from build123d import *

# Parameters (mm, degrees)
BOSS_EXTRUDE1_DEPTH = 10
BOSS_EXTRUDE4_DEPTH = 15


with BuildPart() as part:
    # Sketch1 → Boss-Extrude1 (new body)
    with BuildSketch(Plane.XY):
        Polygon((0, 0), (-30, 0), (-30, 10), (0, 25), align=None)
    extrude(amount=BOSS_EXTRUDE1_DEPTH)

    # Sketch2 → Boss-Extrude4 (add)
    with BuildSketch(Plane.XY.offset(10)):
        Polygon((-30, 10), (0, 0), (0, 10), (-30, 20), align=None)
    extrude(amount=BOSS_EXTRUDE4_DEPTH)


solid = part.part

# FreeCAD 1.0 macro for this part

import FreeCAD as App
import Part
import Sketcher


def add_polygon(sketch, points):
    """Adds a closed chain of lines whose ends are joined by coincident constraints."""
    first, n = sketch.GeometryCount, len(points)
    for a, b in zip(points, points[1:] + points[:1]):
        sketch.addGeometry(Part.LineSegment(App.Vector(*a, 0), App.Vector(*b, 0)), False)
    for i in range(n):
        sketch.addConstraint(Sketcher.Constraint("Coincident", first + i, 2, first + (i + 1) % n, 1))

doc = App.newDocument("Part")
params = doc.addObject("Spreadsheet::Sheet", "Params")
for row, (alias, value) in enumerate([
    ("sketch1_width", "30 mm"),
    ("sketch1_height", "25 mm"),
    ("sketch1_height2", "10 mm"),
    ("pad1_length", "10 mm"),
    ("sketch2_height", "10 mm"),
    ("pad2_length", "15 mm"),
], start=1):
    params.set(f"A{row}", alias)
    params.set(f"B{row}", "=" + value)
    params.setAlias(f"B{row}", alias)

body = doc.addObject("PartDesign::Body", "Body")

sketch1 = body.newObject("Sketcher::SketchObject", "Sketch")
sketch1.AttachmentSupport = (doc.getObject("XY_Plane"), [""])
sketch1.MapMode = "FlatFace"
add_polygon(sketch1, [(-30, 0), (0, 0), (0, 25), (-30, 10)])
sketch1.addConstraint([
    Sketcher.Constraint("Horizontal", 0),
    Sketcher.Constraint("Vertical", 1),
    Sketcher.Constraint("Vertical", 3),
    Sketcher.Constraint("Coincident", 0, 2, -1, 1),
    Sketcher.Constraint("DistanceX", 0, 1, 0, 2, 30.0),
    Sketcher.Constraint("DistanceY", 1, 1, 1, 2, 25.0),
    Sketcher.Constraint("DistanceY", 3, 2, 3, 1, 10.0),
])
sketch1.setExpression("Constraints[8]", "Params.sketch1_width")
sketch1.setExpression("Constraints[9]", "Params.sketch1_height")
sketch1.setExpression("Constraints[10]", "Params.sketch1_height2")
pad1 = body.newObject("PartDesign::Pad", "Pad")
pad1.Profile = sketch1
pad1.setExpression("Length", "Params.pad1_length")

sketch2 = body.newObject("Sketcher::SketchObject", "Sketch001")
sketch2.AttachmentSupport = (doc.getObject("XY_Plane"), [""])
sketch2.MapMode = "FlatFace"
sketch2.AttachmentOffset = App.Placement(App.Vector(0, 0, 10), App.Rotation())
add_polygon(sketch2, [(-30, 10), (0, 0), (0, 10), (-30, 20)])
sketch2.addConstraint([
    Sketcher.Constraint("Vertical", 1),
    Sketcher.Constraint("Vertical", 3),
    Sketcher.Constraint("Coincident", 0, 2, -1, 1),
    Sketcher.Constraint("Parallel", 0, 2),
    Sketcher.Constraint("Horizontal", 1, 2, 3, 2),
    Sketcher.Constraint("DistanceY", 1, 1, 1, 2, 10.0),
    Sketcher.Constraint("DistanceX", 2, 2, -1, 1, 30.0),
])
sketch2.setExpression("Constraints[9]", "Params.sketch2_height")
pad2 = body.newObject("PartDesign::Pad", "Pad001")
pad2.Profile = sketch2
pad2.setExpression("Length", "Params.pad2_length")

doc.recompute()
